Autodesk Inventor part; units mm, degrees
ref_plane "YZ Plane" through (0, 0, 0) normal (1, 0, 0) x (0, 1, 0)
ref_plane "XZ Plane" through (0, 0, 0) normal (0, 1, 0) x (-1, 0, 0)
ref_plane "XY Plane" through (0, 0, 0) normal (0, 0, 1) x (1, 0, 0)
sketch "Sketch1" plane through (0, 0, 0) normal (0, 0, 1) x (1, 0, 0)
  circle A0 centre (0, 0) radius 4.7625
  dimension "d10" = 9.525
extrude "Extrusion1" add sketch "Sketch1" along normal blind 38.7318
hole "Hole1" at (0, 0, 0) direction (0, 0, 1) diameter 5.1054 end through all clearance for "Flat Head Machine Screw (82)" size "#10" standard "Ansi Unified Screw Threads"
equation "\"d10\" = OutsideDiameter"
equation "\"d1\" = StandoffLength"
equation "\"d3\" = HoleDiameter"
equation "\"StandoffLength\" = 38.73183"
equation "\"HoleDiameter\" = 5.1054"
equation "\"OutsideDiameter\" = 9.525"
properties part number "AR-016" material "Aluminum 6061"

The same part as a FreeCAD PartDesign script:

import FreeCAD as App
import Part
import Sketcher
from FreeCAD import Vector
Q = App.Units.Quantity

doc = App.newDocument("Part")
body = doc.addObject("PartDesign::Body", "Body")

sketch1 = body.newObject("Sketcher::SketchObject", "Sketch")
sketch1.AttachmentSupport = (doc.getObject("XY_Plane"), [""])
sketch1.MapMode = "FlatFace"
sketch1.addGeometry(Part.Circle(Vector(0, 0, 0), Vector(0, 0, 1), 4.8), False)
sketch1.addConstraint([
    Sketcher.Constraint("Coincident", 0, 3, -1, 1),
    Sketcher.Constraint("Diameter", 0, Q("0.375 in")),
])
pad1 = body.newObject("PartDesign::Pad", "Pad")
pad1.Profile = sketch1
pad1.Length = 38.7318

sketch2 = body.newObject("Sketcher::SketchObject", "Sketch001")
sketch2.AttachmentSupport = (doc.getObject("XY_Plane"), [""])
sketch2.MapMode = "FlatFace"
sketch2.addGeometry(Part.Circle(Vector(0, 0, 0), Vector(0, 0, 1), 2.6), False)
sketch2.addConstraint([
    Sketcher.Constraint("Coincident", 0, 3, -1, 1),
    Sketcher.Constraint("Diameter", 0, Q("0.201 in")),
])
doc.recompute()
hole = body.newObject("PartDesign::Hole", "Hole")
hole.Profile = sketch2
hole.ThreadType = "None"
hole.Diameter = Q("0.201 in")
hole.DepthType = "ThroughAll"
hole.Reversed = True

doc.recompute()
